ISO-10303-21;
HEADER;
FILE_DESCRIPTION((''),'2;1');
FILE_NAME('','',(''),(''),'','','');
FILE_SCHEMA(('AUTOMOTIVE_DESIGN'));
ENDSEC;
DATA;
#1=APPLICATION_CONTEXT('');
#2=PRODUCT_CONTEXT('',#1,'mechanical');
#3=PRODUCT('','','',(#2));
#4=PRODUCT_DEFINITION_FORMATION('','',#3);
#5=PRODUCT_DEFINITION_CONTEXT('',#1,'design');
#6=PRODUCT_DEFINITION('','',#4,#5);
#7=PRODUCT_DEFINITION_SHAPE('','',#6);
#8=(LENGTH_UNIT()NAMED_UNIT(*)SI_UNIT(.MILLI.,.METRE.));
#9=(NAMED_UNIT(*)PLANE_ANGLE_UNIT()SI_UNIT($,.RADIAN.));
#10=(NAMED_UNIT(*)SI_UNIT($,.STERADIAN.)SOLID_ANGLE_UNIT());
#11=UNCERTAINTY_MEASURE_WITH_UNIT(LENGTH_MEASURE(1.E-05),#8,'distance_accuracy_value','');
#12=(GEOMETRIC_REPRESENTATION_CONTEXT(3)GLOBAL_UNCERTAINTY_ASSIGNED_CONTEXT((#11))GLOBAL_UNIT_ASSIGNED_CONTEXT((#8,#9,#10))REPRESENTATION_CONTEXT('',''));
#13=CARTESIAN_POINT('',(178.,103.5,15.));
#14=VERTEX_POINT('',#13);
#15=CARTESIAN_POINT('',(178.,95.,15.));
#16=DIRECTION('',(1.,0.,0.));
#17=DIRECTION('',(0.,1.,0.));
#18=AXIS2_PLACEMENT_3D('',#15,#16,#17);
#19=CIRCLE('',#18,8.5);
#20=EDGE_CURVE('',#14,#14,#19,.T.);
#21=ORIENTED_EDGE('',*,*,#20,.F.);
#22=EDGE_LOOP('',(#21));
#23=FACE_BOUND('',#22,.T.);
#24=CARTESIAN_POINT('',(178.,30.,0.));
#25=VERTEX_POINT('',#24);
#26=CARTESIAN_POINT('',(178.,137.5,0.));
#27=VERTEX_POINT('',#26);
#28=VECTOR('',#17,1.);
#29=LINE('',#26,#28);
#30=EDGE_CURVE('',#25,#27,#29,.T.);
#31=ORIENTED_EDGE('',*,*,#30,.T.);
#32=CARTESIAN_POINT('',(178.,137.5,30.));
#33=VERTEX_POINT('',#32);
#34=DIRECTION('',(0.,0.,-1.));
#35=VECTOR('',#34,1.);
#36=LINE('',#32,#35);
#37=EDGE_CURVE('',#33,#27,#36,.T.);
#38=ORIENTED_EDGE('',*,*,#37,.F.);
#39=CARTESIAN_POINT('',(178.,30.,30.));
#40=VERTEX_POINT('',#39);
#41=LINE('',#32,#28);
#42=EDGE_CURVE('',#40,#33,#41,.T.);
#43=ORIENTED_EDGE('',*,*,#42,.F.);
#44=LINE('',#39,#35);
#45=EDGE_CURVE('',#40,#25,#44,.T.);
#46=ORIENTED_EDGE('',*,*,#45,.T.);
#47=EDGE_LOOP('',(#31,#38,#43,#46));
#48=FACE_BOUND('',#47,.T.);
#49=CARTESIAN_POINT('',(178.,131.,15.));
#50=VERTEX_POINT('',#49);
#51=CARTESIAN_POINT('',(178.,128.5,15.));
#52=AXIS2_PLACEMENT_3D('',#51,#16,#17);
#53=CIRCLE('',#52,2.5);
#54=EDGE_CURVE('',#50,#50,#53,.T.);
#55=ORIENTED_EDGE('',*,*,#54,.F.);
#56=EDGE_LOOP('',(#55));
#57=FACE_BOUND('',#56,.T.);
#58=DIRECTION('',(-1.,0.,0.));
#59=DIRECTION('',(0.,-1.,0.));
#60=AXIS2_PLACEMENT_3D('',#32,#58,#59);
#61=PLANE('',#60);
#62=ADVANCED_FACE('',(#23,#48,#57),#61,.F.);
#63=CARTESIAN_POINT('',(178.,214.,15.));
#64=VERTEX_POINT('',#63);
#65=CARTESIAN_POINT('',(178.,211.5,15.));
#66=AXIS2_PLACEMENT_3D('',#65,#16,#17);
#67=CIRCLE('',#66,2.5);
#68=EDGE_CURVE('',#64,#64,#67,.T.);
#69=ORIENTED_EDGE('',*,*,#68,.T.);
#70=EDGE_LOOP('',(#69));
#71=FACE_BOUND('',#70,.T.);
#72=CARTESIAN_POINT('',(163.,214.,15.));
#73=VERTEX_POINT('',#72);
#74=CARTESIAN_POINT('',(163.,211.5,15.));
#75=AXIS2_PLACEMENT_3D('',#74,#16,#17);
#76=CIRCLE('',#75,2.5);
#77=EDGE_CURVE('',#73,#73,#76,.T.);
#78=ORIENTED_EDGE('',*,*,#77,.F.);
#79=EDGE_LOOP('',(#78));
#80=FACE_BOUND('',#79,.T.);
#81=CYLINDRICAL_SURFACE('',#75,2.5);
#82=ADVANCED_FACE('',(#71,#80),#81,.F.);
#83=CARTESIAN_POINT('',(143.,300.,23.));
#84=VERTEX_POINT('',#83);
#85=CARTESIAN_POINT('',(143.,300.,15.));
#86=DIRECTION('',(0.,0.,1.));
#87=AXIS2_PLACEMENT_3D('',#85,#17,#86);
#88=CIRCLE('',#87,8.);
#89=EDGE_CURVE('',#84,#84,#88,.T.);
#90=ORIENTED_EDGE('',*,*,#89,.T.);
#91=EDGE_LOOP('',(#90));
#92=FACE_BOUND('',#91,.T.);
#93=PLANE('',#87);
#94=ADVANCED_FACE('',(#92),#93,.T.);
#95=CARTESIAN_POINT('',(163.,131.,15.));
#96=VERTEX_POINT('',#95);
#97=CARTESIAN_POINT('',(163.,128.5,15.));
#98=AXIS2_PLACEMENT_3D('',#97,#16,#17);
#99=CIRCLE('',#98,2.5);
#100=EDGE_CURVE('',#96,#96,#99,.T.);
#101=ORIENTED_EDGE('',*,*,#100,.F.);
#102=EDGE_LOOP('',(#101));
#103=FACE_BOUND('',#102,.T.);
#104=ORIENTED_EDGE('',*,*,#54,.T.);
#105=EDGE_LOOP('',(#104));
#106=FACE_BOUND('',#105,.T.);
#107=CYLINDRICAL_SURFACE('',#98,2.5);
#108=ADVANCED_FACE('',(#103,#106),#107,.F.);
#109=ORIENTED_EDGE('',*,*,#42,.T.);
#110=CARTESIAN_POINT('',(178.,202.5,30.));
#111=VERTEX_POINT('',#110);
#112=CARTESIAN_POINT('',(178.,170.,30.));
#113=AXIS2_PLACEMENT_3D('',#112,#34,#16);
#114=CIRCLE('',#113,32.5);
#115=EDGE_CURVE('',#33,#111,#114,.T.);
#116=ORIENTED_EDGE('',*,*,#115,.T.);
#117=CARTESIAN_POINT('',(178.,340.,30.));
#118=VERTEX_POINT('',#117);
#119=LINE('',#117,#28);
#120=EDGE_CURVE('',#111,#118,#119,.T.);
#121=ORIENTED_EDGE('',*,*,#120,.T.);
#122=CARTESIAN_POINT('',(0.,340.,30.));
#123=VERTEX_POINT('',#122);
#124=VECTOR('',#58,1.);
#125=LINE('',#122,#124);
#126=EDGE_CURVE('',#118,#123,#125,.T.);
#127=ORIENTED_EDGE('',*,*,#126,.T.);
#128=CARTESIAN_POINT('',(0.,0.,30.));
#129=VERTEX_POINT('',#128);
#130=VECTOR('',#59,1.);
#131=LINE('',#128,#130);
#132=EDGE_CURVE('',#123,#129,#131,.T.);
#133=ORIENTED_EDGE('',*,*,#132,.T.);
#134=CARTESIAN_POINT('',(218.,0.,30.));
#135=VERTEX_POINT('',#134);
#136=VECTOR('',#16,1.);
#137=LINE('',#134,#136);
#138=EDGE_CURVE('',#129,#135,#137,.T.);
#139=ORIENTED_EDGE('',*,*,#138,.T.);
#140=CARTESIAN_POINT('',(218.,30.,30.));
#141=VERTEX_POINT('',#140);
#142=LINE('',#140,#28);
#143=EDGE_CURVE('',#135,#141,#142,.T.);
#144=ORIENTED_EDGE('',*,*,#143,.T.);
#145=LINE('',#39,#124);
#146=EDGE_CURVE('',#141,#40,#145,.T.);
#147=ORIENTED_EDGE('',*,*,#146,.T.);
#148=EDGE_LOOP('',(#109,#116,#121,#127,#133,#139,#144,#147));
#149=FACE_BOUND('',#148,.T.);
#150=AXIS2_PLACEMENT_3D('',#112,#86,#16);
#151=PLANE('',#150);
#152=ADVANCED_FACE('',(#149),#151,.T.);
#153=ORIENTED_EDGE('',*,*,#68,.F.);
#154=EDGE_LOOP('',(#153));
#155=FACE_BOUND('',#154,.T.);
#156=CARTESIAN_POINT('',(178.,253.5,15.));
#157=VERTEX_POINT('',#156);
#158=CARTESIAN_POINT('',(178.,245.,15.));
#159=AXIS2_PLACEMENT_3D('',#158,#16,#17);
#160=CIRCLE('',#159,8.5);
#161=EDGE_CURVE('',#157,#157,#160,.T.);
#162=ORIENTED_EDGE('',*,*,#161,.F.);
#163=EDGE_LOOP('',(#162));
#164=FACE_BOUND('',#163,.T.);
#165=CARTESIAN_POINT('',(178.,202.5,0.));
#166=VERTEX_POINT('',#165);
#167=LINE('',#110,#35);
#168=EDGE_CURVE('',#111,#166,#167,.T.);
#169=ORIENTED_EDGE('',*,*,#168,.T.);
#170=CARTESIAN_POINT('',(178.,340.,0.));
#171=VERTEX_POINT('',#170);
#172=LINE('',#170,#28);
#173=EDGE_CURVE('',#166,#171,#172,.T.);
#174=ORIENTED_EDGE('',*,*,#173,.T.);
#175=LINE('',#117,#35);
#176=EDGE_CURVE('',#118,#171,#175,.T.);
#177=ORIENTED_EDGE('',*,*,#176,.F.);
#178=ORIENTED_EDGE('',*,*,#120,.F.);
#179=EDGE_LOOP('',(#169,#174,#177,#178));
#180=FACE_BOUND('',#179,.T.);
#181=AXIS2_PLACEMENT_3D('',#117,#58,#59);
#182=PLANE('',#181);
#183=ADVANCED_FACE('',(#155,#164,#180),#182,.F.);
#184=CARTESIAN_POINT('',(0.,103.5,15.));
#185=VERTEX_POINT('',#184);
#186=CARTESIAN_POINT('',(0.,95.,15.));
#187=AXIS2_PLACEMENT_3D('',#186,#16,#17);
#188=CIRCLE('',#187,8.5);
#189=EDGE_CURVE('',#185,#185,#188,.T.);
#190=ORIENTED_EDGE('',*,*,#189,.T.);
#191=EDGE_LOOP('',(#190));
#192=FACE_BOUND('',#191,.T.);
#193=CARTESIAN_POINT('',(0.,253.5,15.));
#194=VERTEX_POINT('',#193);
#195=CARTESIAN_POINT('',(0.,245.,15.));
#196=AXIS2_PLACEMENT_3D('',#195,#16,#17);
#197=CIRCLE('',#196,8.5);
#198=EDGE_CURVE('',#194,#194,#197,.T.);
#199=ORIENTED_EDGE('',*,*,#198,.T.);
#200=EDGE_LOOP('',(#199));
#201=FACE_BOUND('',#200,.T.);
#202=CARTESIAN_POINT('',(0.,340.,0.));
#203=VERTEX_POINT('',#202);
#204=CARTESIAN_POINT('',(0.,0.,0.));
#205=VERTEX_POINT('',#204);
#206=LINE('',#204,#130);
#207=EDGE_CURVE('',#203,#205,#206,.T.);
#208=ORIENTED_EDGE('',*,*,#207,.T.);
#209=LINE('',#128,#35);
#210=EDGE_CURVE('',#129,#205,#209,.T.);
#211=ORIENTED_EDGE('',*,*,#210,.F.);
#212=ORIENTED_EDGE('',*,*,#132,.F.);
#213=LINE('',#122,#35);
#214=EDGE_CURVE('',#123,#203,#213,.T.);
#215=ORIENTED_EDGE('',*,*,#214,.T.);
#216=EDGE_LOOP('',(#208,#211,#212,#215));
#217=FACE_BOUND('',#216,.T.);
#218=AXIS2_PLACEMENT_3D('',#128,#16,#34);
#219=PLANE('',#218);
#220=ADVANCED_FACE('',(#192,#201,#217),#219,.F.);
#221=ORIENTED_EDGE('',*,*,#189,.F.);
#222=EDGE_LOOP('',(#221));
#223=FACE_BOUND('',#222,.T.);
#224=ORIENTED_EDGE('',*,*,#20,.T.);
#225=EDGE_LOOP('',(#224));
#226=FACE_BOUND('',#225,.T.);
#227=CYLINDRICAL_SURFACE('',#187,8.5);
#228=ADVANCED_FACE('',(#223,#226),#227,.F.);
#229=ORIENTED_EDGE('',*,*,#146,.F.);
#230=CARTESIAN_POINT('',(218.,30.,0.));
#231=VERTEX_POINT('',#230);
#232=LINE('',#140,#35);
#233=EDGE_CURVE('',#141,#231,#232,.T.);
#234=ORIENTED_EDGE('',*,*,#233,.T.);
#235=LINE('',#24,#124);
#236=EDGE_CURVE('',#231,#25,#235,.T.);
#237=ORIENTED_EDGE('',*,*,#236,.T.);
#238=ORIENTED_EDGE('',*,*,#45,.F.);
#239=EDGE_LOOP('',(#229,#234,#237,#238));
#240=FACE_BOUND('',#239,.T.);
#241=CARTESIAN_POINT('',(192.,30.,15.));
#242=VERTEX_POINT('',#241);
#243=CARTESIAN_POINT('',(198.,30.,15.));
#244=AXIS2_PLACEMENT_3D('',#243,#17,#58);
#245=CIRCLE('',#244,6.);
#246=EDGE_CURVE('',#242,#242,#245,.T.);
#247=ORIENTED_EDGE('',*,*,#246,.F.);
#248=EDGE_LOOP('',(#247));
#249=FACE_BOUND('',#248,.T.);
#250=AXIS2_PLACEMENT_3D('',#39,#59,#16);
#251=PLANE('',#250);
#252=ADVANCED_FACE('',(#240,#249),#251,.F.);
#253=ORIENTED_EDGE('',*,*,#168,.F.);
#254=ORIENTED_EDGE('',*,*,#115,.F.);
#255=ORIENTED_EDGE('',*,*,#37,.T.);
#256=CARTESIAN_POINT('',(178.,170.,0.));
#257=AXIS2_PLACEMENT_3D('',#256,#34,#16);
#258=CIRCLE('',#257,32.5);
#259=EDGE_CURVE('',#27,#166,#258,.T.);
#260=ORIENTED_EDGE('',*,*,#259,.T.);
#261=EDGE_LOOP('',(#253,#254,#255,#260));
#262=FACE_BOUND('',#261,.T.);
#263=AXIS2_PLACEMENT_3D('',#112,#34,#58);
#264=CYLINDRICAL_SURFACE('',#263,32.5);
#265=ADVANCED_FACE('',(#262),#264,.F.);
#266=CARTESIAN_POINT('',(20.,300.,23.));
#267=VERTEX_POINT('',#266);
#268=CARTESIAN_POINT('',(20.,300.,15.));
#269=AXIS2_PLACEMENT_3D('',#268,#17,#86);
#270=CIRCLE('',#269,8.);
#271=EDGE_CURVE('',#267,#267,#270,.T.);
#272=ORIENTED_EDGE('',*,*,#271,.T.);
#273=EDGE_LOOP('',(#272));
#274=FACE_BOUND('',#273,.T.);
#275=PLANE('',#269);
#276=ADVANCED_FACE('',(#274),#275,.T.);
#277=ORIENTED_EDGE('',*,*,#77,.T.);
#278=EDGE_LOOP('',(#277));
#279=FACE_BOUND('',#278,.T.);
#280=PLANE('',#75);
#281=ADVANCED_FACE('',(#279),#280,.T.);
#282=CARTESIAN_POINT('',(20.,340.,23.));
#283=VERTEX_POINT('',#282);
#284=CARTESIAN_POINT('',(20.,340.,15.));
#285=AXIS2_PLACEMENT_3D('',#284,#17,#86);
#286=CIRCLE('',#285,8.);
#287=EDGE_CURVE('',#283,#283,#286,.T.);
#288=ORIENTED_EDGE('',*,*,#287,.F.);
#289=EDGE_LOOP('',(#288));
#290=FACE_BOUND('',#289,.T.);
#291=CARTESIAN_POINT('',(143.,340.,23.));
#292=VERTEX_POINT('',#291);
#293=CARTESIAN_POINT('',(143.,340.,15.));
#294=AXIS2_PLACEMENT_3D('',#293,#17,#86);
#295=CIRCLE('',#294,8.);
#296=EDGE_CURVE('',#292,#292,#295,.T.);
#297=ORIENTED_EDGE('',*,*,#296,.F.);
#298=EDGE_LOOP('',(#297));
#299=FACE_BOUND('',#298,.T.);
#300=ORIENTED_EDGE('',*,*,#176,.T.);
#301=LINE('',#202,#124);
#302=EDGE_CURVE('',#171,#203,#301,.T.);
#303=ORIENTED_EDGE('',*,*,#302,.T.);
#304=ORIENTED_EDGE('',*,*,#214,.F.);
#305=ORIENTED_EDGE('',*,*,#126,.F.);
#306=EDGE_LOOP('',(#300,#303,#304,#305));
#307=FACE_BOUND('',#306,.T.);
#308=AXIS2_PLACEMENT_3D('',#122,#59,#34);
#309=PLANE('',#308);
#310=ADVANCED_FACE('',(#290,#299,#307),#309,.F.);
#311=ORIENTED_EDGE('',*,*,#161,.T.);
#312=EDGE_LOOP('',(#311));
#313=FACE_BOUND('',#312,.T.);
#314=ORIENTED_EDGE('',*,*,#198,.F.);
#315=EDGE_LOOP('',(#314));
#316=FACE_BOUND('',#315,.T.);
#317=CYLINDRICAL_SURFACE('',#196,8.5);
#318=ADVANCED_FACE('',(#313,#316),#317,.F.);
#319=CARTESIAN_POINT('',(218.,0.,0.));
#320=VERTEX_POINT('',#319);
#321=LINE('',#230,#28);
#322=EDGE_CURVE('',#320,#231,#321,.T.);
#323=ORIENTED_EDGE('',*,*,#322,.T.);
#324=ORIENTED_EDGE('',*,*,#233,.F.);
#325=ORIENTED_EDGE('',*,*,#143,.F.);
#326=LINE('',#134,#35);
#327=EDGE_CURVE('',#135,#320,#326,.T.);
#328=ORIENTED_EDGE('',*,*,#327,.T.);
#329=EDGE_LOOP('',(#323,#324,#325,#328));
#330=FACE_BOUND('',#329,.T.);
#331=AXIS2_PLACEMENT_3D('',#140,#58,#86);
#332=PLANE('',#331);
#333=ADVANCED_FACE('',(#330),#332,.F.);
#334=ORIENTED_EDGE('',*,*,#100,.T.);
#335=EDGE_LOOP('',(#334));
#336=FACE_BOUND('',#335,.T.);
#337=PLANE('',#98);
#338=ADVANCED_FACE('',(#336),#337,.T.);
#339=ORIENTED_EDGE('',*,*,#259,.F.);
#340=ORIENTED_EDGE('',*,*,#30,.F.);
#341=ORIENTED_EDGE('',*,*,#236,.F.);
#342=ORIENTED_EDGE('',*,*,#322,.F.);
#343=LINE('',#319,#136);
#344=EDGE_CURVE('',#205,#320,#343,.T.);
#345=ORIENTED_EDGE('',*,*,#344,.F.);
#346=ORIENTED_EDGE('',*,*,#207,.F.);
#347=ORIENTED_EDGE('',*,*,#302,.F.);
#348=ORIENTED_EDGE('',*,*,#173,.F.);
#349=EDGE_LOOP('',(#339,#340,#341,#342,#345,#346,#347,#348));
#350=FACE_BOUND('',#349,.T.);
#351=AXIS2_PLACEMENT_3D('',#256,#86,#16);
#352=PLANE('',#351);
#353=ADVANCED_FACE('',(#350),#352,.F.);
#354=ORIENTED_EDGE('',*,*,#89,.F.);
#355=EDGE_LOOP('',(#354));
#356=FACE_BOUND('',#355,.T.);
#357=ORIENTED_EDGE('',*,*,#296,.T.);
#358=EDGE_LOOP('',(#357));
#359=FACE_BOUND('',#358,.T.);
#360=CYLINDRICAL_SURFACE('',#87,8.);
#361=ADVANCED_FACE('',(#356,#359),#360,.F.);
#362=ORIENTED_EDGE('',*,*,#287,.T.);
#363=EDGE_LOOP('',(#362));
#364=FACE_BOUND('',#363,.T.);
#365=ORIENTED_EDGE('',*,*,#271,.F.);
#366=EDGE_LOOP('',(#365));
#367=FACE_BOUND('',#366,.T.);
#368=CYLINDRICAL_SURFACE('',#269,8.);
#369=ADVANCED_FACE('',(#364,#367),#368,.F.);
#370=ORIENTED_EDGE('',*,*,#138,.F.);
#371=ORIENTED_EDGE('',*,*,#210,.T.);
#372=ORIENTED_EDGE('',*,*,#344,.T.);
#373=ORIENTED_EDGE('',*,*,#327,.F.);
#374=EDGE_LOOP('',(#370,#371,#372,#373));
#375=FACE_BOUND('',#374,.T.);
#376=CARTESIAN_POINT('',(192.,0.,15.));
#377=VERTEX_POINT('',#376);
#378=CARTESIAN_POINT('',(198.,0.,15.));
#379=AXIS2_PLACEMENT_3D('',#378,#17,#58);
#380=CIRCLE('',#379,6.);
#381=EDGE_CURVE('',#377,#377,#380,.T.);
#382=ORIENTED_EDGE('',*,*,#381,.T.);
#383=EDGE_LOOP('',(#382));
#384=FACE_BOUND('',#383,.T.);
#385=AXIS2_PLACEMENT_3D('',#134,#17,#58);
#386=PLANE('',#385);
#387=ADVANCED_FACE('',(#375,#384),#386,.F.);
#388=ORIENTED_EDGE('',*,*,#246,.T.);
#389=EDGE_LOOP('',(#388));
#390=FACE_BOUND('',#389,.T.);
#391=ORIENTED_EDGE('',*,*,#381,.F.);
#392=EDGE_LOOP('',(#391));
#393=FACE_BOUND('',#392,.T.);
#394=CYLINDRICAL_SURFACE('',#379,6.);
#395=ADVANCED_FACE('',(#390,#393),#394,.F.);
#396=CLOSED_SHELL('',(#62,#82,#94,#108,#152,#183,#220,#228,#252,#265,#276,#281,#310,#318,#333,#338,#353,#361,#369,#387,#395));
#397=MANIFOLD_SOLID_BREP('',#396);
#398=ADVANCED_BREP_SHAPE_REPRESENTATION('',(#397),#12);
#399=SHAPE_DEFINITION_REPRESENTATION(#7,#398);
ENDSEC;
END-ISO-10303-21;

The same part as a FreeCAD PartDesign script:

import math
import FreeCAD as App
import Part
import Sketcher
Q = App.Units.Quantity

doc = App.newDocument("Part")
params = doc.addObject("Spreadsheet::Sheet", "Params")
for row, (alias, value) in enumerate([
    ("sketch1_radius", "32.5 mm"),
    ("sketch1_width", "218 mm"),
    ("sketch1_width2", "40 mm"),
    ("sketch1_height", "340 mm"),
    ("sketch1_height2", "30 mm"),
    ("pad1_length", "30 mm"),
    ("sketch2_diameter", "17 mm"),
    ("linearpattern_pitch", "150 mm"),
    ("sketch3_diameter", "5 mm"),
    ("pocket2_length", "15 mm"),
    ("linearpattern2_pitch", "83 mm"),
    ("sketch4_diameter", "12 mm"),
    ("sketch5_diameter", "16 mm"),
    ("pocket4_length", "40 mm"),
], start=1):
    params.set(f"A{row}", alias)
    params.set(f"B{row}", "=" + value)
    params.setAlias(f"B{row}", alias)

body = doc.addObject("PartDesign::Body", "Body")

# Sketch on XY plane
sketch1 = doc.addObject("Sketcher::SketchObject", "Sketch")
body.addObject(sketch1)
sketch1.AttachmentSupport = (doc.XY_Plane, [""])
sketch1.MapMode = "FlatFace"
sketch1.addGeometry([
    Part.LineSegment(App.Vector(0, 340, 0), App.Vector(0, 0, 0)),  # 0
    Part.LineSegment(App.Vector(0, 0, 0), App.Vector(218, 0, 0)),  # 1
    Part.LineSegment(App.Vector(218, 0, 0), App.Vector(218, 30, 0)),  # 2
    Part.LineSegment(App.Vector(218, 30, 0), App.Vector(178, 30, 0)),  # 3
    Part.LineSegment(App.Vector(178, 30, 0), App.Vector(178, 137.5, 0)),  # 4
    Part.ArcOfCircle(Part.Circle(App.Vector(178, 170, 0), App.Vector(0, 0, 1), 32.5), math.radians(90), math.radians(270)),  # 5
    Part.LineSegment(App.Vector(178, 202.5, 0), App.Vector(178, 340, 0)),  # 6
    Part.LineSegment(App.Vector(178, 340, 0), App.Vector(0, 340, 0)),  # 7
], False)
sketch1.addConstraint([
    Sketcher.Constraint("Coincident", 0, 2, 1, 1),
    Sketcher.Constraint("Coincident", 1, 2, 2, 1),
    Sketcher.Constraint("Coincident", 2, 2, 3, 1),
    Sketcher.Constraint("Coincident", 3, 2, 4, 1),
    Sketcher.Constraint("Coincident", 4, 2, 5, 2),
    Sketcher.Constraint("Coincident", 5, 1, 6, 1),
    Sketcher.Constraint("Coincident", 6, 2, 7, 1),
    Sketcher.Constraint("Coincident", 7, 2, 0, 1),
    Sketcher.Constraint("Vertical", 0),
    Sketcher.Constraint("Horizontal", 1),
    Sketcher.Constraint("Vertical", 2),
    Sketcher.Constraint("Horizontal", 3),
    Sketcher.Constraint("Vertical", 4),
    Sketcher.Constraint("Vertical", 6),
    Sketcher.Constraint("Horizontal", 7),
    Sketcher.Constraint("Coincident", 0, 2, -1, 1),
    Sketcher.Constraint("Vertical", 5, 3, 3, 2),
    Sketcher.Constraint("Vertical", 4, 2, 5, 1),
    Sketcher.Constraint("Radius", 5, Q("32.5 mm")),
    Sketcher.Constraint("DistanceX", 1, 1, 1, 2, Q("218 mm")),
    Sketcher.Constraint("DistanceX", 3, 2, 3, 1, Q("40 mm")),
    Sketcher.Constraint("DistanceY", 0, 2, 0, 1, Q("340 mm")),
    Sketcher.Constraint("DistanceY", 2, 1, 2, 2, Q("30 mm")),
    Sketcher.Constraint("DistanceY", 4, 1, 4, 2, Q("107.5 mm")),
])
sketch1.setExpression("Constraints[18]", "Params.sketch1_radius")
sketch1.setExpression("Constraints[19]", "Params.sketch1_width")
sketch1.setExpression("Constraints[20]", "Params.sketch1_width2")
sketch1.setExpression("Constraints[21]", "Params.sketch1_height")
sketch1.setExpression("Constraints[22]", "Params.sketch1_height2")
pad1 = doc.addObject("PartDesign::Pad", "Pad")
body.addObject(pad1)
pad1.Profile = sketch1
pad1.setExpression("Length", "Params.pad1_length")

# Sketch on YZ plane
sketch2 = doc.addObject("Sketcher::SketchObject", "Sketch001")
body.addObject(sketch2)
sketch2.AttachmentSupport = (doc.YZ_Plane, [""])
sketch2.MapMode = "FlatFace"
sketch2.AttachmentOffset = App.Placement(App.Vector(0, 0, 178), App.Rotation())
sketch2.addGeometry(Part.Circle(App.Vector(95, 15, 0), App.Vector(0, 0, 1), 8.5), False)
sketch2.addConstraint([
    Sketcher.Constraint("Diameter", 0, Q("17 mm")),
    Sketcher.Constraint("DistanceX", -1, 1, 0, 3, Q("95 mm")),
    Sketcher.Constraint("DistanceY", -1, 1, 0, 3, Q("15 mm")),
])
sketch2.setExpression("Constraints[0]", "Params.sketch2_diameter")
pocket1 = doc.addObject("PartDesign::Pocket", "Pocket")
body.addObject(pocket1)
pocket1.Profile = sketch2
pocket1.Type = "ThroughAll"
doc.recompute()

linearpattern = doc.addObject("PartDesign::LinearPattern", "LinearPattern")
body.addObject(linearpattern)
linearpattern.Originals = [pocket1]
linearpattern.Direction = (doc.Y_Axis, [""])
linearpattern.Mode = "offset"
linearpattern.setExpression("Offset", "Params.linearpattern_pitch")
linearpattern.Occurrences = 2
body.Tip = linearpattern

# Sketch on YZ plane
sketch3 = doc.addObject("Sketcher::SketchObject", "Sketch002")
body.addObject(sketch3)
sketch3.AttachmentSupport = (doc.YZ_Plane, [""])
sketch3.MapMode = "FlatFace"
sketch3.AttachmentOffset = App.Placement(App.Vector(0, 0, 178), App.Rotation())
sketch3.addGeometry(Part.Circle(App.Vector(128.5, 15, 0), App.Vector(0, 0, 1), 2.5), False)
sketch3.addConstraint([
    Sketcher.Constraint("Diameter", 0, Q("5 mm")),
    Sketcher.Constraint("DistanceY", -1, 1, 0, 3, Q("15 mm")),
    Sketcher.Constraint("DistanceX", -1, 1, 0, 3, Q("128.5 mm")),
])
sketch3.setExpression("Constraints[0]", "Params.sketch3_diameter")
pocket2 = doc.addObject("PartDesign::Pocket", "Pocket001")
body.addObject(pocket2)
pocket2.Profile = sketch3
pocket2.setExpression("Length", "Params.pocket2_length")
doc.recompute()

linearpattern2 = doc.addObject("PartDesign::LinearPattern", "LinearPattern001")
body.addObject(linearpattern2)
linearpattern2.Originals = [pocket2]
linearpattern2.Direction = (doc.Y_Axis, [""])
linearpattern2.Mode = "offset"
linearpattern2.setExpression("Offset", "Params.linearpattern2_pitch")
linearpattern2.Occurrences = 2
body.Tip = linearpattern2

# Sketch on XZ plane
sketch4 = doc.addObject("Sketcher::SketchObject", "Sketch003")
body.addObject(sketch4)
sketch4.AttachmentSupport = (doc.XZ_Plane, [""])
sketch4.MapMode = "FlatFace"
sketch4.AttachmentOffset = App.Placement(App.Vector(0, 0, -30), App.Rotation())
sketch4.addGeometry(Part.Circle(App.Vector(198, 15, 0), App.Vector(0, 0, 1), 6), False)
sketch4.addConstraint([
    Sketcher.Constraint("Diameter", 0, Q("12 mm")),
    Sketcher.Constraint("DistanceX", -1, 1, 0, 3, Q("198 mm")),
    Sketcher.Constraint("DistanceY", -1, 1, 0, 3, Q("15 mm")),
])
sketch4.setExpression("Constraints[0]", "Params.sketch4_diameter")
pocket3 = doc.addObject("PartDesign::Pocket", "Pocket002")
body.addObject(pocket3)
pocket3.Profile = sketch4
pocket3.Type = "ThroughAll"
pocket3.Reversed = True

# Sketch on XZ plane
sketch5 = doc.addObject("Sketcher::SketchObject", "Sketch004")
body.addObject(sketch5)
sketch5.AttachmentSupport = (doc.XZ_Plane, [""])
sketch5.MapMode = "FlatFace"
sketch5.AttachmentOffset = App.Placement(App.Vector(0, 0, -340), App.Rotation())
sketch5.addGeometry([
    Part.Circle(App.Vector(20, 15, 0), App.Vector(0, 0, 1), 8),
    Part.Circle(App.Vector(143, 15, 0), App.Vector(0, 0, 1), 8),
], False)
sketch5.addConstraint([
    Sketcher.Constraint("Equal", 0, 1),
    Sketcher.Constraint("Horizontal", 0, 3, 1, 3),
    Sketcher.Constraint("Diameter", 0, Q("16 mm")),
    Sketcher.Constraint("DistanceX", -1, 1, 0, 3, Q("20 mm")),
    Sketcher.Constraint("DistanceY", -1, 1, 0, 3, Q("15 mm")),
    Sketcher.Constraint("DistanceX", -1, 1, 1, 3, Q("143 mm")),
])
sketch5.setExpression("Constraints[2]", "Params.sketch5_diameter")
pocket4 = doc.addObject("PartDesign::Pocket", "Pocket003")
body.addObject(pocket4)
pocket4.Profile = sketch5
pocket4.setExpression("Length", "Params.pocket4_length")
pocket4.Reversed = True

doc.recompute()
